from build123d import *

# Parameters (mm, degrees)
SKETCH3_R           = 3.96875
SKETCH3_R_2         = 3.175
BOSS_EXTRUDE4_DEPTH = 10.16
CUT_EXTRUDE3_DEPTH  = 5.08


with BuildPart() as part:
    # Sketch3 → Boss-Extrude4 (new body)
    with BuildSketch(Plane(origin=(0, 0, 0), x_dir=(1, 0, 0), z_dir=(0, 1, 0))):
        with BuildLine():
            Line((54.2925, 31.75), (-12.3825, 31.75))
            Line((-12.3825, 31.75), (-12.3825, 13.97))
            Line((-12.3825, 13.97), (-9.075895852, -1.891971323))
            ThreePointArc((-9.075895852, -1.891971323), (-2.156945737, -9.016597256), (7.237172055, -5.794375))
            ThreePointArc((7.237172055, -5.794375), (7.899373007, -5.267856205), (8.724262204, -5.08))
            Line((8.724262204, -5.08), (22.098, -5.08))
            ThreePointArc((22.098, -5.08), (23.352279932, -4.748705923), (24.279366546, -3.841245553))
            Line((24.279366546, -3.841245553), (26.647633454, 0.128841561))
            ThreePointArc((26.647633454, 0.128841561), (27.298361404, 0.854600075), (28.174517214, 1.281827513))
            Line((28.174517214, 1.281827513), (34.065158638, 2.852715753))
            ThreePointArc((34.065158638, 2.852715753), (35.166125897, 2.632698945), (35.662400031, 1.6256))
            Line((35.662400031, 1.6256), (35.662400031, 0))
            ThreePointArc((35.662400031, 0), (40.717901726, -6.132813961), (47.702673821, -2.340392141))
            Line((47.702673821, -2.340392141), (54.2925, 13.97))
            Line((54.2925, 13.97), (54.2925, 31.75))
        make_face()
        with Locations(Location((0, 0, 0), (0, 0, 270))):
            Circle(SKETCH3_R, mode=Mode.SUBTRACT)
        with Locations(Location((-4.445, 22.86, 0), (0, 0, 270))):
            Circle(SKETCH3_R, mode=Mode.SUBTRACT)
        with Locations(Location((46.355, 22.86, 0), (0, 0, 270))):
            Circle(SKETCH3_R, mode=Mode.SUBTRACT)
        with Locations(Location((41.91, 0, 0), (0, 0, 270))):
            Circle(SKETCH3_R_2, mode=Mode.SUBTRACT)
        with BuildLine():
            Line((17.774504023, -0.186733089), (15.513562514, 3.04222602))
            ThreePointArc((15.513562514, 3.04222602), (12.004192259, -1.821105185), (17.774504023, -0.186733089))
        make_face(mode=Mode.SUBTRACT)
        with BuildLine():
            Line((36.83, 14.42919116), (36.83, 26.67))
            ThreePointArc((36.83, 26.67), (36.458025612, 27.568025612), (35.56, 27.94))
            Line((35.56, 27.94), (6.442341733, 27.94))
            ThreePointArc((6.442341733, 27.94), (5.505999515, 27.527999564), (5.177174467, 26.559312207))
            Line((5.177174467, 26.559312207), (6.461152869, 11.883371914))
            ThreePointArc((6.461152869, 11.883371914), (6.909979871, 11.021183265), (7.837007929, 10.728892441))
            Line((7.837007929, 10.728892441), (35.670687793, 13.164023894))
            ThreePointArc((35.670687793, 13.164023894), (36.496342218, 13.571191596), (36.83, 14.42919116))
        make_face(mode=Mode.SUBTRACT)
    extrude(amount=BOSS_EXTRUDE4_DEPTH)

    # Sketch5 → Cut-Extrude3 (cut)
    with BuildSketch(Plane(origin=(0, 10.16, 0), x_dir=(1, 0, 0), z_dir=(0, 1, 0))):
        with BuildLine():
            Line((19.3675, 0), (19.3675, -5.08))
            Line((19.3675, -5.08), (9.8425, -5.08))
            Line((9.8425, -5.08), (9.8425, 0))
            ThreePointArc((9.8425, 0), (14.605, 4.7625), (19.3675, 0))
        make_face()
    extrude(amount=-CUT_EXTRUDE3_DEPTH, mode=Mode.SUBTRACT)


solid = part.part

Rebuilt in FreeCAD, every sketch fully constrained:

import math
import FreeCAD as App
import Part
import Sketcher

V = App.Vector
Q = App.Units.Quantity

doc = App.newDocument("Part")
body = doc.addObject("PartDesign::Body", "Body")

# Sketch on XZ plane
sketch1 = doc.addObject("Sketcher::SketchObject", "Sketch")
body.addObject(sketch1)
sketch1.AttachmentSupport = (doc.XZ_Plane, [""])
sketch1.MapMode = "FlatFace"
sketch1.addGeometry(Part.LineSegment(V(54.3, -31.8, 0), V(-12.4, -31.8, 0)), False)
sketch1.addGeometry(Part.LineSegment(V(-12.4, -31.8, 0), V(-12.4, -14, 0)), False)
sketch1.addGeometry(Part.LineSegment(V(-12.4, -14, 0), V(-9.1, 1.9, 0)), False)
sketch1.addGeometry(Part.ArcOfCircle(Part.Circle(V(0, 0, 0), V(0, 0, 1), 9.3), math.radians(39), math.radians(168)), False)
sketch1.addGeometry(Part.ArcOfCircle(Part.Circle(V(8.7, 7, 0), V(0, 0, 1), 1.9), math.radians(-141), math.radians(-90)), False)
sketch1.addGeometry(Part.LineSegment(V(8.7, 5.1, 0), V(22.1, 5.1, 0)), False)
sketch1.addGeometry(Part.ArcOfCircle(Part.Circle(V(22.1, 2.5, 0), V(0, 0, 1), 2.5), math.radians(31), math.radians(90)), False)
sketch1.addGeometry(Part.LineSegment(V(24.3, 3.8, 0), V(26.6, -0.1, 0)), False)
sketch1.addGeometry(Part.ArcOfCircle(Part.Circle(V(28.8, 1.2, 0), V(0, 0, 1), 2.5), math.radians(-149), math.radians(-105)), False)
sketch1.addGeometry(Part.LineSegment(V(28.2, -1.3, 0), V(34.1, -2.9, 0)), False)
sketch1.addGeometry(Part.ArcOfCircle(Part.Circle(V(34.4, -1.6, 0), V(0, 0, 1), 1.3), math.radians(-105), math.radians(0)), False)
sketch1.addGeometry(Part.LineSegment(V(35.7, -1.6, 0), V(35.7, 0, 0)), False)
sketch1.addGeometry(Part.ArcOfCircle(Part.Circle(V(41.9, 0, 0), V(0, 0, 1), 6.2), math.radians(22), math.radians(180)), False)
sketch1.addGeometry(Part.LineSegment(V(47.7, 2.3, 0), V(54.3, -14, 0)), False)
sketch1.addGeometry(Part.LineSegment(V(54.3, -14, 0), V(54.3, -31.8, 0)), False)
sketch1.addGeometry(Part.Circle(V(0, 0, 0), V(0, 0, 1), 4), False)
sketch1.addGeometry(Part.LineSegment(V(15.5, -3, 0), V(17.8, 0.2, 0)), False)
sketch1.addGeometry(Part.ArcOfCircle(Part.Circle(V(14.6, 0, 0), V(0, 0, 1), 3.2), math.radians(3), math.radians(287)), False)
sketch1.addGeometry(Part.Circle(V(41.9, 0, 0), V(0, 0, 1), 3.2), False)
sketch1.addGeometry(Part.Circle(V(-4.4, -22.9, 0), V(0, 0, 1), 4), False)
sketch1.addGeometry(Part.LineSegment(V(36.8, -26.7, 0), V(36.8, -14.4, 0)), False)
sketch1.addGeometry(Part.ArcOfCircle(Part.Circle(V(35.6, -14.4, 0), V(0, 0, 1), 1.3), math.radians(0), math.radians(85)), False)
sketch1.addGeometry(Part.LineSegment(V(35.7, -13.2, 0), V(7.8, -10.7, 0)), False)
sketch1.addGeometry(Part.ArcOfCircle(Part.Circle(V(7.7, -12, 0), V(0, 0, 1), 1.3), math.radians(85), math.radians(175)), False)
sketch1.addGeometry(Part.LineSegment(V(6.5, -11.9, 0), V(5.2, -26.6, 0)), False)
sketch1.addGeometry(Part.ArcOfCircle(Part.Circle(V(6.4, -26.7, 0), V(0, 0, 1), 1.3), math.radians(175), math.radians(270)), False)
sketch1.addGeometry(Part.LineSegment(V(6.4, -27.9, 0), V(35.6, -27.9, 0)), False)
sketch1.addGeometry(Part.ArcOfCircle(Part.Circle(V(35.6, -26.7, 0), V(0, 0, 1), 1.3), math.radians(-90), math.radians(0)), False)
sketch1.addGeometry(Part.Circle(V(46.4, -22.9, 0), V(0, 0, 1), 4), False)
sketch1.addConstraint(Sketcher.Constraint("Coincident", 0, 2, 1, 1))
sketch1.addConstraint(Sketcher.Constraint("Coincident", 1, 2, 2, 1))
sketch1.addConstraint(Sketcher.Constraint("Tangent", 2, 2, 3, 2))
sketch1.addConstraint(Sketcher.Constraint("Tangent", 3, 1, 4, 1))
sketch1.addConstraint(Sketcher.Constraint("Tangent", 4, 2, 5, 1))
sketch1.addConstraint(Sketcher.Constraint("Tangent", 5, 2, 6, 2))
sketch1.addConstraint(Sketcher.Constraint("Tangent", 6, 1, 7, 1))
sketch1.addConstraint(Sketcher.Constraint("Tangent", 7, 2, 8, 1))
sketch1.addConstraint(Sketcher.Constraint("Tangent", 8, 2, 9, 1))
sketch1.addConstraint(Sketcher.Constraint("Tangent", 9, 2, 10, 1))
sketch1.addConstraint(Sketcher.Constraint("Tangent", 10, 2, 11, 1))
sketch1.addConstraint(Sketcher.Constraint("Tangent", 11, 2, 12, 2))
sketch1.addConstraint(Sketcher.Constraint("Tangent", 12, 1, 13, 1))
sketch1.addConstraint(Sketcher.Constraint("Coincident", 13, 2, 14, 1))
sketch1.addConstraint(Sketcher.Constraint("Coincident", 14, 2, 0, 1))
sketch1.addConstraint(Sketcher.Constraint("Coincident", 16, 1, 17, 2))
sketch1.addConstraint(Sketcher.Constraint("Coincident", 17, 1, 16, 2))
sketch1.addConstraint(Sketcher.Constraint("Tangent", 20, 2, 21, 1))
sketch1.addConstraint(Sketcher.Constraint("Tangent", 21, 2, 22, 1))
sketch1.addConstraint(Sketcher.Constraint("Tangent", 22, 2, 23, 1))
sketch1.addConstraint(Sketcher.Constraint("Tangent", 23, 2, 24, 1))
sketch1.addConstraint(Sketcher.Constraint("Tangent", 24, 2, 25, 1))
sketch1.addConstraint(Sketcher.Constraint("Tangent", 25, 2, 26, 1))
sketch1.addConstraint(Sketcher.Constraint("Tangent", 26, 2, 27, 1))
sketch1.addConstraint(Sketcher.Constraint("Tangent", 27, 2, 20, 1))
sketch1.addConstraint(Sketcher.Constraint("Horizontal", 0))
sketch1.addConstraint(Sketcher.Constraint("Vertical", 1))
sketch1.addConstraint(Sketcher.Constraint("Horizontal", 5))
sketch1.addConstraint(Sketcher.Constraint("Vertical", 11))
sketch1.addConstraint(Sketcher.Constraint("Vertical", 14))
sketch1.addConstraint(Sketcher.Constraint("Vertical", 20))
sketch1.addConstraint(Sketcher.Constraint("Horizontal", 26))
sketch1.addConstraint(Sketcher.Constraint("Coincident", 3, 3, -1, 1))
sketch1.addConstraint(Sketcher.Constraint("Coincident", 15, 3, -1, 1))
sketch1.addConstraint(Sketcher.Constraint("Coincident", 18, 3, 12, 3))
sketch1.addConstraint(Sketcher.Constraint("Equal", 6, 8))
sketch1.addConstraint(Sketcher.Constraint("Equal", 17, 18))
sketch1.addConstraint(Sketcher.Constraint("Equal", 15, 19))
sketch1.addConstraint(Sketcher.Constraint("Equal", 10, 21))
sketch1.addConstraint(Sketcher.Constraint("Equal", 21, 23))
sketch1.addConstraint(Sketcher.Constraint("Equal", 23, 25))
sketch1.addConstraint(Sketcher.Constraint("Equal", 25, 27))
sketch1.addConstraint(Sketcher.Constraint("Equal", 19, 28))
sketch1.addConstraint(Sketcher.Constraint("PointOnObject", 12, 3, -1))
sketch1.addConstraint(Sketcher.Constraint("PointOnObject", 17, 3, -1))
sketch1.addConstraint(Sketcher.Constraint("Perpendicular", 22, 24))
sketch1.addConstraint(Sketcher.Constraint("Horizontal", 19, 3, 28, 3))
sketch1.addConstraint(Sketcher.Constraint("Horizontal", 1, 2, 13, 2))
sketch1.addConstraint(Sketcher.Constraint("Radius", 6, Q("0.1 in")))
sketch1.addConstraint(Sketcher.Constraint("Diameter", 18, Q("0.25 in")))
sketch1.addConstraint(Sketcher.Constraint("Radius", 10, Q("0.05 in")))
sketch1.addConstraint(Sketcher.Constraint("Diameter", 15, Q("0.3125 in")))
sketch1.addConstraint(Sketcher.Constraint("DistanceY", 1, 1, 1, 2, Q("0.7 in")))
sketch1.addConstraint(Sketcher.Constraint("Angle", 13, Q("-68 deg")))
sketch1.addConstraint(Sketcher.Constraint("Angle", 16, Q("55 deg")))
sketch1.addConstraint(Sketcher.Constraint("Angle", 22, Q("175 deg")))
sketch1.addConstraint(Sketcher.Constraint("Radius", 3, Q("0.365 in")))
sketch1.addConstraint(Sketcher.Constraint("Radius", 4, Q("0.075 in")))
sketch1.addConstraint(Sketcher.Constraint("DistanceY", 19, 3, 6, 3, Q("1 in")))
sketch1.addConstraint(Sketcher.Constraint("Distance", 22, Q("1.1 in")))
sketch1.addConstraint(Sketcher.Constraint("DistanceY", -1, 1, 6, 3, Q("0.1 in")))
sketch1.addConstraint(Sketcher.Constraint("DistanceX", -1, 1, 21, 3, Q("1.4 in")))
sketch1.addConstraint(Sketcher.Constraint("DistanceY", 25, 2, -1, 1, Q("1.1 in")))
sketch1.addConstraint(Sketcher.Constraint("DistanceY", 0, 2, 25, 3, Q("0.2 in")))
sketch1.addConstraint(Sketcher.Constraint("Distance", 24, Q("0.58 in")))
sketch1.addConstraint(Sketcher.Constraint("DistanceX", 0, 2, 0, 1, Q("2.625 in")))
sketch1.addConstraint(Sketcher.Constraint("DistanceY", 11, 1, 11, 2, Q("0.064 in")))
sketch1.addConstraint(Sketcher.Constraint("DistanceX", -1, 1, 6, 3, Q("0.87 in")))
sketch1.addConstraint(Sketcher.Constraint("DistanceX", -1, 1, 12, 3, Q("1.65 in")))
sketch1.addConstraint(Sketcher.Constraint("Radius", 12, Q("6.2476 mm")))
sketch1.addConstraint(Sketcher.Constraint("DistanceX", 17, 3, 8, 3, Q("0.56 in")))
sketch1.addConstraint(Sketcher.Constraint("DistanceX", 19, 3, 17, 3, Q("0.75 in")))
sketch1.addConstraint(Sketcher.Constraint("Distance", 7, Q("0.182 in")))
sketch1.addConstraint(Sketcher.Constraint("DistanceX", -1, 1, 8, 3, Q("1.135 in")))
sketch1.addConstraint(Sketcher.Constraint("DistanceX", -1, 1, 28, 3, Q("1.825 in")))
sketch1.addConstraint(Sketcher.Constraint("DistanceX", 4, 2, 16, 1, Q("6.7893 mm")))
pad1 = doc.addObject("PartDesign::Pad", "Pad")
body.addObject(pad1)
pad1.Profile = sketch1
pad1.Length = Q("0.4 in")
pad1.Reversed = True

# Sketch on XZ plane
sketch2 = doc.addObject("Sketcher::SketchObject", "Sketch001")
body.addObject(sketch2)
sketch2.AttachmentSupport = (doc.XZ_Plane, [""])
sketch2.MapMode = "FlatFace"
sketch2.AttachmentOffset = App.Placement(V(0, 0, -0.4 * 25.4), App.Rotation())
sketch2.addGeometry(Part.LineSegment(V(19.4, 5.1, 0), V(19.4, 0, 0)), False)
sketch2.addGeometry(Part.ArcOfCircle(Part.Circle(V(14.6, 0, 0), V(0, 0, 1), 4.8), math.radians(180), math.radians(360)), False)
sketch2.addGeometry(Part.LineSegment(V(9.8, 0, 0), V(9.8, 5.1, 0)), False)
sketch2.addGeometry(Part.LineSegment(V(9.8, 5.1, 0), V(19.4, 5.1, 0)), False)
sketch2.addConstraint(Sketcher.Constraint("Tangent", 0, 2, 1, 2))
sketch2.addConstraint(Sketcher.Constraint("Tangent", 1, 1, 2, 1))
sketch2.addConstraint(Sketcher.Constraint("Coincident", 2, 2, 3, 1))
sketch2.addConstraint(Sketcher.Constraint("Coincident", 3, 2, 0, 1))
sketch2.addConstraint(Sketcher.Constraint("Vertical", 0))
sketch2.addConstraint(Sketcher.Constraint("Vertical", 2))
sketch2.addConstraint(Sketcher.Constraint("Horizontal", 3))
sketch2.addConstraint(Sketcher.Constraint("PointOnObject", 1, 3, -1))
sketch2.addConstraint(Sketcher.Constraint("DistanceY", 0, 2, 0, 1, Q("0.2 in")))
sketch2.addConstraint(Sketcher.Constraint("Radius", 1, Q("0.1875 in")))
sketch2.addConstraint(Sketcher.Constraint("DistanceX", -1, 1, 1, 3, Q("0.575 in")))
pocket1 = doc.addObject("PartDesign::Pocket", "Pocket")
body.addObject(pocket1)
pocket1.Profile = sketch2
pocket1.Length = Q("0.2 in")
pocket1.Reversed = True

doc.recompute()
